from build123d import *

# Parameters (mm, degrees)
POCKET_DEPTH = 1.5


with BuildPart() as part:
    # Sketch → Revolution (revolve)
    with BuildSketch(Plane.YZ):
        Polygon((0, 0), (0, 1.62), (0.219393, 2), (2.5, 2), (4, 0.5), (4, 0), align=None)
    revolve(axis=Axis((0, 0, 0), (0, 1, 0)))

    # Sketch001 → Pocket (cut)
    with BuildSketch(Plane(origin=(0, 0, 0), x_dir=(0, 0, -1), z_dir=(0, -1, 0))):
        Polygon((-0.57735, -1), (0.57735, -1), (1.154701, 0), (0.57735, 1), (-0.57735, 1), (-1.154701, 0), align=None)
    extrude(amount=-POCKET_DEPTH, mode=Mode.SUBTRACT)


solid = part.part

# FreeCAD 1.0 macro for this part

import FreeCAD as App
import Part
import Sketcher

V = App.Vector
Q = App.Units.Quantity


def add_polygon(sketch, points):
    """Adds a closed chain of lines whose ends are joined by coincident constraints."""
    first, n = sketch.GeometryCount, len(points)
    for a, b in zip(points, points[1:] + points[:1]):
        sketch.addGeometry(Part.LineSegment(App.Vector(*a, 0), App.Vector(*b, 0)), False)
    for i in range(n):
        sketch.addConstraint(Sketcher.Constraint("Coincident", first + i, 2, first + (i + 1) % n, 1))

doc = App.newDocument("Part")
body = doc.addObject("PartDesign::Body", "Body")

sketch1 = body.newObject("Sketcher::SketchObject", "Sketch")
sketch1.AttachmentSupport = (doc.getObject("YZ_Plane"), [""])
sketch1.MapMode = "FlatFace"
add_polygon(sketch1, [(0, 1.62), (0, 0), (4, 0), (4, 0.5), (2.5, 2), (0.22, 2)])
sketch1.addConstraint([
    Sketcher.Constraint("Vertical", 0),
    Sketcher.Constraint("Horizontal", 1),
    Sketcher.Constraint("Vertical", 2),
    Sketcher.Constraint("Horizontal", 4),
    Sketcher.Constraint("Coincident", 0, 2, -1, 1),
    Sketcher.Constraint("DistanceX", 1, 1, 1, 2, 4.0),
    Sketcher.Constraint("Angle", 3, Q("135 deg")),
    Sketcher.Constraint("Angle", 5, Q("-119.999988 deg")),
    Sketcher.Constraint("DistanceY", 2, 1, 2, 2, 0.5),
    Sketcher.Constraint("DistanceY", -1, 1, 3, 2, 2.0),
    Sketcher.Constraint("DistanceY", 0, 2, 0, 1, 1.62),
])
revolution = body.newObject("PartDesign::Revolution", "Revolution")
revolution.Profile = sketch1
revolution.ReferenceAxis = (sketch1, ["H_Axis"])
revolution.Angle = 360

sketch2 = body.newObject("Sketcher::SketchObject", "Sketch001")
sketch2.AttachmentSupport = (doc.getObject("XZ_Plane"), [""])
sketch2.MapMode = "FlatFace"
add_polygon(sketch2, [(-1, 0.6), (-1, -0.6), (0, -1.2), (1, -0.6), (1, 0.6), (0, 1.2)])
sketch2.addConstraint([
    Sketcher.Constraint("Vertical", 0),
    Sketcher.Constraint("Vertical", 3),
    Sketcher.Constraint("Symmetric", 0, 2, 3, 2, -1, 1),
    Sketcher.Constraint("Symmetric", 1, 2, 4, 2, -1, 1),
    Sketcher.Constraint("PointOnObject", 1, 2, -2),
    Sketcher.Constraint("Parallel", 2, 5),
    Sketcher.Constraint("Horizontal", 0, 2, 2, 2),
    Sketcher.Constraint("DistanceX", 0, 2, -1, 1, 1.0),
    Sketcher.Constraint("DistanceY", 0, 2, 0, 1, 1.1547),
    Sketcher.Constraint("Distance", 1, 1.154701),
])
pocket1 = body.newObject("PartDesign::Pocket", "Pocket")
pocket1.Profile = sketch2
pocket1.Length = 1.5

doc.recompute()
